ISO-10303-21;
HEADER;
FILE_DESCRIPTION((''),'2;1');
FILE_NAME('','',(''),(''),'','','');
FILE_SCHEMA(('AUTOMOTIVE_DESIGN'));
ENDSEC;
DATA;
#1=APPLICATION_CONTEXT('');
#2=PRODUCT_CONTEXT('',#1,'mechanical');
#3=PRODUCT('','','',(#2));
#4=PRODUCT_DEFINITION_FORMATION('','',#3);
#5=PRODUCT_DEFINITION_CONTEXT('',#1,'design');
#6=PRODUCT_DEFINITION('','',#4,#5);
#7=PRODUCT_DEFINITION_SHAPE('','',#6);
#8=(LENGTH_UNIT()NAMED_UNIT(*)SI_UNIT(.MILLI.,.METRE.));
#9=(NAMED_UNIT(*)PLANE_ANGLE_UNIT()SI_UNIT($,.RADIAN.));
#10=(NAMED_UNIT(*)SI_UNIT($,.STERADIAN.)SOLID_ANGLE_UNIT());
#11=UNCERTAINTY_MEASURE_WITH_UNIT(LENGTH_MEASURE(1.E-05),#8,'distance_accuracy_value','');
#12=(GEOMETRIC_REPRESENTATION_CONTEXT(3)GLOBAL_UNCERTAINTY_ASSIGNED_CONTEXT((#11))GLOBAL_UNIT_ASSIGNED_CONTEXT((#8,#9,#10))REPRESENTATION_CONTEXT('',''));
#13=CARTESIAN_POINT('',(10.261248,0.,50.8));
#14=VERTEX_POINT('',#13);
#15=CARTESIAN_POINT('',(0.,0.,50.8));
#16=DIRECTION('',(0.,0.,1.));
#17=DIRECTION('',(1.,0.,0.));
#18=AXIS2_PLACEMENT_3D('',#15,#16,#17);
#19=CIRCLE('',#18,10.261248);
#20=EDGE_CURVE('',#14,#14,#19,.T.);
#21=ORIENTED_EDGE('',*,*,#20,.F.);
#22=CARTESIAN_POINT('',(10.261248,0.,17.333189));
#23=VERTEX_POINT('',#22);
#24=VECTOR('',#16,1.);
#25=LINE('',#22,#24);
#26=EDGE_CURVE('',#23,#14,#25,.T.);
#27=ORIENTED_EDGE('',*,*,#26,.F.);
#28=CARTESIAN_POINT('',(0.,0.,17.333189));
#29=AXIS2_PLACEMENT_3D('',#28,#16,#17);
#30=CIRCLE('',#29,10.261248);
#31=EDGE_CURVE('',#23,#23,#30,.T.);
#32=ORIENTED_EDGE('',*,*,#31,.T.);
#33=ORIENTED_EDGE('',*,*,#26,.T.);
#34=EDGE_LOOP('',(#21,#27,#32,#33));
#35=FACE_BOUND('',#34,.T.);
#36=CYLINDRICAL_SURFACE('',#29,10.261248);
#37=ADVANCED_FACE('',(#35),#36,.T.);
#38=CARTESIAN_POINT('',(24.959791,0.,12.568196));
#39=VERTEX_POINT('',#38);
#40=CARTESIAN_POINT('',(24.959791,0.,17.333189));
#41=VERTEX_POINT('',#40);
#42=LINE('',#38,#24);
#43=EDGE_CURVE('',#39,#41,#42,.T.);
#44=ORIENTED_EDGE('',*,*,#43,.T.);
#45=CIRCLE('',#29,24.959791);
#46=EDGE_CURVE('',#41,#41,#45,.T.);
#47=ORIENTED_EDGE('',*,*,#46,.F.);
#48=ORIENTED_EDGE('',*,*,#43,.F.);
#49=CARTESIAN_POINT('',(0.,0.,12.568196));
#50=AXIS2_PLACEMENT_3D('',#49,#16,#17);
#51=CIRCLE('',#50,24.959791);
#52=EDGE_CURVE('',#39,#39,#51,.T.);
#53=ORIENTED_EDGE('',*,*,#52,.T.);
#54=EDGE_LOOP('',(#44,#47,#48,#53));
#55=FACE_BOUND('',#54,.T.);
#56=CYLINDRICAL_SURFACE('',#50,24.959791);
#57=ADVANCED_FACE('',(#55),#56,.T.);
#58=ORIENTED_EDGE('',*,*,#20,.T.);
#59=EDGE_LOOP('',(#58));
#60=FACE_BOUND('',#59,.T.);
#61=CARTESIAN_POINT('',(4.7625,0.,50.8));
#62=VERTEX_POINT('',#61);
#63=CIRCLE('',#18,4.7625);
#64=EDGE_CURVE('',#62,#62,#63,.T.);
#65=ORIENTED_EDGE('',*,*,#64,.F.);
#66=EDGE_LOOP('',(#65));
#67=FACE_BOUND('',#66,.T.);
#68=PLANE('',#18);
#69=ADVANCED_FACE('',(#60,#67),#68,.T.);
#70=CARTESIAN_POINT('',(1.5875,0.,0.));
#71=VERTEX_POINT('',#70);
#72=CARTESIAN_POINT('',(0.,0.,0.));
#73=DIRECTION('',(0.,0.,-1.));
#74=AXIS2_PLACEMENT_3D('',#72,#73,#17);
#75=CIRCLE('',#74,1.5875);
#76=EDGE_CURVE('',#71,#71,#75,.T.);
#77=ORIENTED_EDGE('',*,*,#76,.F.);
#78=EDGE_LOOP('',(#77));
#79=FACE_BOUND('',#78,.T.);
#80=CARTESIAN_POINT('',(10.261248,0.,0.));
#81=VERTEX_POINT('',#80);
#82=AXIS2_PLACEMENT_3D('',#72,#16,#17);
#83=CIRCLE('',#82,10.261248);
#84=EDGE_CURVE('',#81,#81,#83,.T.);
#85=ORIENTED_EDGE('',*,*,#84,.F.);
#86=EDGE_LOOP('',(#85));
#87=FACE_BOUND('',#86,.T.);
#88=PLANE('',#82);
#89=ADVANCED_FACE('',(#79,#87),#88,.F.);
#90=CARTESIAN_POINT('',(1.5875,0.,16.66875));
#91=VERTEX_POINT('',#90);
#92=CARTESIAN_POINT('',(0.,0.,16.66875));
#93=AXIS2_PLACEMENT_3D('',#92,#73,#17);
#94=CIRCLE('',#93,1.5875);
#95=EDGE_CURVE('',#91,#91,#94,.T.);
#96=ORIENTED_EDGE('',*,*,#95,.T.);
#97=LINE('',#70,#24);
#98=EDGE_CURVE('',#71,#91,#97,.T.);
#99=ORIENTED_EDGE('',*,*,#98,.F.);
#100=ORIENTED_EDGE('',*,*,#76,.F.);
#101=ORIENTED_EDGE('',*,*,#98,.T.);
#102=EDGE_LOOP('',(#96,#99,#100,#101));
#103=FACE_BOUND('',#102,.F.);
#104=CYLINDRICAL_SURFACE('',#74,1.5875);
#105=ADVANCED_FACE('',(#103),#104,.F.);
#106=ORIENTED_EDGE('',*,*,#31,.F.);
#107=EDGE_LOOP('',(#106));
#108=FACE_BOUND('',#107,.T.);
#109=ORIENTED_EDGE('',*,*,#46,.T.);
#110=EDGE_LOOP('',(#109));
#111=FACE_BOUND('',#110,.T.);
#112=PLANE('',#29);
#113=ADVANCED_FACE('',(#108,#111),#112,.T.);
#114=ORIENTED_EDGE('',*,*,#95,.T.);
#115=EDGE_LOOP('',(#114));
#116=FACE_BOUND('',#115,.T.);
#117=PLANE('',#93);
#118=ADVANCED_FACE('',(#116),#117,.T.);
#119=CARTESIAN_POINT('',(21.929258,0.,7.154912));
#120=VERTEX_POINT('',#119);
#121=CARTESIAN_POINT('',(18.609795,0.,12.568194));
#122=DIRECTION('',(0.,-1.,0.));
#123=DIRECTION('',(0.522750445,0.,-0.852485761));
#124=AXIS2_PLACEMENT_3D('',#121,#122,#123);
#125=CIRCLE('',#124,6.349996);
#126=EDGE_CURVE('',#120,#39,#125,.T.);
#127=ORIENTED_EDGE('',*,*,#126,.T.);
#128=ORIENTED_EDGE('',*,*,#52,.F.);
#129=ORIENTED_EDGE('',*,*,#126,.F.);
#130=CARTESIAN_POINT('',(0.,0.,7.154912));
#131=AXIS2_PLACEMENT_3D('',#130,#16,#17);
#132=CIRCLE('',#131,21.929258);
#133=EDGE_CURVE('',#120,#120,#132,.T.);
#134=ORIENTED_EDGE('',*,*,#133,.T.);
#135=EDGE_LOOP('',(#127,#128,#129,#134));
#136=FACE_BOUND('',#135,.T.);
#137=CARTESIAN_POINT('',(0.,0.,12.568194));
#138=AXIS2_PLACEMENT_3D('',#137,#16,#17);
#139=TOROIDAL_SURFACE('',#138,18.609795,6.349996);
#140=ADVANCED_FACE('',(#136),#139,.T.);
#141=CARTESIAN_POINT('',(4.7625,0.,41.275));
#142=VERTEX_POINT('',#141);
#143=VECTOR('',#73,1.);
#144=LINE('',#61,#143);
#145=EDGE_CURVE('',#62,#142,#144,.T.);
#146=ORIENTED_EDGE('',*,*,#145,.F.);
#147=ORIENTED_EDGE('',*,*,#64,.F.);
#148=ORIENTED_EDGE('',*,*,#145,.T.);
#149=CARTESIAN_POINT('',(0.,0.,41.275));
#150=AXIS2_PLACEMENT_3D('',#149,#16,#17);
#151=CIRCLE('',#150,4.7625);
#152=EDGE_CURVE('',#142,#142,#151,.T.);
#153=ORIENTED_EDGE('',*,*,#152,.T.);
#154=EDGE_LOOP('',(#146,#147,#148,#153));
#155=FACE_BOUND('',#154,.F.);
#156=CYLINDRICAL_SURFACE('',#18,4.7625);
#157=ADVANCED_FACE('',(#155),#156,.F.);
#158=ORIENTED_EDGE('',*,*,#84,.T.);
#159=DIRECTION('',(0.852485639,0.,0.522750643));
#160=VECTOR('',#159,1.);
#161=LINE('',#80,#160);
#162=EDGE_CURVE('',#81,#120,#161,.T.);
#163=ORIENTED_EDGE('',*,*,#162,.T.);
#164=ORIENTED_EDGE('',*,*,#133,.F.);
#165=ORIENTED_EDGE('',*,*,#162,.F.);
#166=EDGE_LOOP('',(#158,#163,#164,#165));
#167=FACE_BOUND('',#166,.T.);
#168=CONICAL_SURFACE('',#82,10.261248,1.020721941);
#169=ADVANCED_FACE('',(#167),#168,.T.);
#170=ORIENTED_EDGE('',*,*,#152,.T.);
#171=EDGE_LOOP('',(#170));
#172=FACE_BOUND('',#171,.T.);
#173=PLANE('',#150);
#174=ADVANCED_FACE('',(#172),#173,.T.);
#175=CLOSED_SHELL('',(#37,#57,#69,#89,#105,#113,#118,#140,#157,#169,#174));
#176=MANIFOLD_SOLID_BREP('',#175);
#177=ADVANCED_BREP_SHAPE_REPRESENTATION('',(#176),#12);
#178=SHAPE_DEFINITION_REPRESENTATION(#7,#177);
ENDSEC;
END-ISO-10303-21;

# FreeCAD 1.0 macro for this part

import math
import FreeCAD as App
import Part
import Sketcher

V = App.Vector
Q = App.Units.Quantity

doc = App.newDocument("Part")
body = doc.addObject("PartDesign::Body", "Body")

# Sketch on XZ plane
sketch1 = body.newObject("Sketcher::SketchObject", "Sketch")
sketch1.AttachmentSupport = (doc.getObject("XZ_Plane"), [""])
sketch1.MapMode = "FlatFace"
sketch1.addGeometry([
    Part.LineSegment(V(0, 50.8, 0), V(0, 0, 0)),  # 0
    Part.LineSegment(V(0, 0, 0), V(10.261248, 0, 0)),  # 1
    Part.LineSegment(V(10.261248, 0, 0), V(21.929258, 7.154912, 0)),  # 2
    Part.ArcOfCircle(Part.Circle(V(18.609795, 12.568194, 0), V(0, 0, 1), 6.349996), math.radians(-58.483073), math.radians(0.000022)),  # 3
    Part.LineSegment(V(24.959791, 12.568196, 0), V(24.959791, 17.333189, 0)),  # 4
    Part.LineSegment(V(24.959791, 17.333189, 0), V(10.261248, 17.333189, 0)),  # 5
    Part.LineSegment(V(10.261248, 17.333189, 0), V(10.261248, 50.8, 0)),  # 6
    Part.LineSegment(V(10.261248, 50.8, 0), V(0, 50.8, 0)),  # 7
], False)
sketch1.addConstraint([
    Sketcher.Constraint("Coincident", 0, 2, 1, 1),
    Sketcher.Constraint("Coincident", 1, 2, 2, 1),
    Sketcher.Constraint("Tangent", 2, 2, 3, 1),
    Sketcher.Constraint("Tangent", 3, 2, 4, 1),
    Sketcher.Constraint("Coincident", 4, 2, 5, 1),
    Sketcher.Constraint("Coincident", 5, 2, 6, 1),
    Sketcher.Constraint("Coincident", 6, 2, 7, 1),
    Sketcher.Constraint("Coincident", 7, 2, 0, 1),
    Sketcher.Constraint("Vertical", 0),
    Sketcher.Constraint("Horizontal", 1),
    Sketcher.Constraint("Vertical", 4),
    Sketcher.Constraint("Horizontal", 5),
    Sketcher.Constraint("Vertical", 6),
    Sketcher.Constraint("Horizontal", 7),
    Sketcher.Constraint("Coincident", 0, 2, -1, 1),
    Sketcher.Constraint("Vertical", 1, 2, 5, 2),
    Sketcher.Constraint("DistanceY", 0, 2, 0, 1, Q("2 in")),
    Sketcher.Constraint("Radius", 3, Q("0.2499999 in")),
    Sketcher.Constraint("DistanceY", 6, 1, 6, 2, Q("33.466811 mm")),
    Sketcher.Constraint("DistanceX", 1, 1, 1, 2, Q("10.261248 mm")),
    Sketcher.Constraint("DistanceX", 5, 2, 5, 1, Q("14.698543 mm")),
    Sketcher.Constraint("DistanceY", 4, 1, 4, 2, Q("4.764993 mm")),
])
revolution = body.newObject("PartDesign::Revolution", "Revolution")
revolution.Profile = sketch1
revolution.ReferenceAxis = (sketch1, ["V_Axis"])
revolution.Angle = 360

# Sketch on XY plane
sketch2 = body.newObject("Sketcher::SketchObject", "Sketch001")
sketch2.AttachmentSupport = (doc.getObject("XY_Plane"), [""])
sketch2.MapMode = "FlatFace"
sketch2.AttachmentOffset = App.Placement(V(0, 0, 2 * 25.4), App.Rotation())
sketch2.addGeometry(Part.Circle(V(0, 0, 0), V(0, 0, 1), 4.7625), False)
sketch2.addConstraint([
    Sketcher.Constraint("Coincident", 0, 3, -1, 1),
    Sketcher.Constraint("Diameter", 0, Q("0.375 in")),
])
pocket1 = body.newObject("PartDesign::Pocket", "Pocket")
pocket1.Profile = sketch2
pocket1.Length = Q("0.375 in")

# Sketch on XY plane
sketch3 = body.newObject("Sketcher::SketchObject", "Sketch002")
sketch3.AttachmentSupport = (doc.getObject("XY_Plane"), [""])
sketch3.MapMode = "FlatFace"
sketch3.addGeometry(Part.Circle(V(0, 0, 0), V(0, 0, 1), 1.5875), False)
sketch3.addConstraint([
    Sketcher.Constraint("Coincident", 0, 3, -1, 1),
    Sketcher.Constraint("Diameter", 0, Q("0.125 in")),
])
pocket2 = body.newObject("PartDesign::Pocket", "Pocket001")
pocket2.Profile = sketch3
pocket2.Length = Q("0.65625 in")
pocket2.Reversed = True

doc.recompute()
